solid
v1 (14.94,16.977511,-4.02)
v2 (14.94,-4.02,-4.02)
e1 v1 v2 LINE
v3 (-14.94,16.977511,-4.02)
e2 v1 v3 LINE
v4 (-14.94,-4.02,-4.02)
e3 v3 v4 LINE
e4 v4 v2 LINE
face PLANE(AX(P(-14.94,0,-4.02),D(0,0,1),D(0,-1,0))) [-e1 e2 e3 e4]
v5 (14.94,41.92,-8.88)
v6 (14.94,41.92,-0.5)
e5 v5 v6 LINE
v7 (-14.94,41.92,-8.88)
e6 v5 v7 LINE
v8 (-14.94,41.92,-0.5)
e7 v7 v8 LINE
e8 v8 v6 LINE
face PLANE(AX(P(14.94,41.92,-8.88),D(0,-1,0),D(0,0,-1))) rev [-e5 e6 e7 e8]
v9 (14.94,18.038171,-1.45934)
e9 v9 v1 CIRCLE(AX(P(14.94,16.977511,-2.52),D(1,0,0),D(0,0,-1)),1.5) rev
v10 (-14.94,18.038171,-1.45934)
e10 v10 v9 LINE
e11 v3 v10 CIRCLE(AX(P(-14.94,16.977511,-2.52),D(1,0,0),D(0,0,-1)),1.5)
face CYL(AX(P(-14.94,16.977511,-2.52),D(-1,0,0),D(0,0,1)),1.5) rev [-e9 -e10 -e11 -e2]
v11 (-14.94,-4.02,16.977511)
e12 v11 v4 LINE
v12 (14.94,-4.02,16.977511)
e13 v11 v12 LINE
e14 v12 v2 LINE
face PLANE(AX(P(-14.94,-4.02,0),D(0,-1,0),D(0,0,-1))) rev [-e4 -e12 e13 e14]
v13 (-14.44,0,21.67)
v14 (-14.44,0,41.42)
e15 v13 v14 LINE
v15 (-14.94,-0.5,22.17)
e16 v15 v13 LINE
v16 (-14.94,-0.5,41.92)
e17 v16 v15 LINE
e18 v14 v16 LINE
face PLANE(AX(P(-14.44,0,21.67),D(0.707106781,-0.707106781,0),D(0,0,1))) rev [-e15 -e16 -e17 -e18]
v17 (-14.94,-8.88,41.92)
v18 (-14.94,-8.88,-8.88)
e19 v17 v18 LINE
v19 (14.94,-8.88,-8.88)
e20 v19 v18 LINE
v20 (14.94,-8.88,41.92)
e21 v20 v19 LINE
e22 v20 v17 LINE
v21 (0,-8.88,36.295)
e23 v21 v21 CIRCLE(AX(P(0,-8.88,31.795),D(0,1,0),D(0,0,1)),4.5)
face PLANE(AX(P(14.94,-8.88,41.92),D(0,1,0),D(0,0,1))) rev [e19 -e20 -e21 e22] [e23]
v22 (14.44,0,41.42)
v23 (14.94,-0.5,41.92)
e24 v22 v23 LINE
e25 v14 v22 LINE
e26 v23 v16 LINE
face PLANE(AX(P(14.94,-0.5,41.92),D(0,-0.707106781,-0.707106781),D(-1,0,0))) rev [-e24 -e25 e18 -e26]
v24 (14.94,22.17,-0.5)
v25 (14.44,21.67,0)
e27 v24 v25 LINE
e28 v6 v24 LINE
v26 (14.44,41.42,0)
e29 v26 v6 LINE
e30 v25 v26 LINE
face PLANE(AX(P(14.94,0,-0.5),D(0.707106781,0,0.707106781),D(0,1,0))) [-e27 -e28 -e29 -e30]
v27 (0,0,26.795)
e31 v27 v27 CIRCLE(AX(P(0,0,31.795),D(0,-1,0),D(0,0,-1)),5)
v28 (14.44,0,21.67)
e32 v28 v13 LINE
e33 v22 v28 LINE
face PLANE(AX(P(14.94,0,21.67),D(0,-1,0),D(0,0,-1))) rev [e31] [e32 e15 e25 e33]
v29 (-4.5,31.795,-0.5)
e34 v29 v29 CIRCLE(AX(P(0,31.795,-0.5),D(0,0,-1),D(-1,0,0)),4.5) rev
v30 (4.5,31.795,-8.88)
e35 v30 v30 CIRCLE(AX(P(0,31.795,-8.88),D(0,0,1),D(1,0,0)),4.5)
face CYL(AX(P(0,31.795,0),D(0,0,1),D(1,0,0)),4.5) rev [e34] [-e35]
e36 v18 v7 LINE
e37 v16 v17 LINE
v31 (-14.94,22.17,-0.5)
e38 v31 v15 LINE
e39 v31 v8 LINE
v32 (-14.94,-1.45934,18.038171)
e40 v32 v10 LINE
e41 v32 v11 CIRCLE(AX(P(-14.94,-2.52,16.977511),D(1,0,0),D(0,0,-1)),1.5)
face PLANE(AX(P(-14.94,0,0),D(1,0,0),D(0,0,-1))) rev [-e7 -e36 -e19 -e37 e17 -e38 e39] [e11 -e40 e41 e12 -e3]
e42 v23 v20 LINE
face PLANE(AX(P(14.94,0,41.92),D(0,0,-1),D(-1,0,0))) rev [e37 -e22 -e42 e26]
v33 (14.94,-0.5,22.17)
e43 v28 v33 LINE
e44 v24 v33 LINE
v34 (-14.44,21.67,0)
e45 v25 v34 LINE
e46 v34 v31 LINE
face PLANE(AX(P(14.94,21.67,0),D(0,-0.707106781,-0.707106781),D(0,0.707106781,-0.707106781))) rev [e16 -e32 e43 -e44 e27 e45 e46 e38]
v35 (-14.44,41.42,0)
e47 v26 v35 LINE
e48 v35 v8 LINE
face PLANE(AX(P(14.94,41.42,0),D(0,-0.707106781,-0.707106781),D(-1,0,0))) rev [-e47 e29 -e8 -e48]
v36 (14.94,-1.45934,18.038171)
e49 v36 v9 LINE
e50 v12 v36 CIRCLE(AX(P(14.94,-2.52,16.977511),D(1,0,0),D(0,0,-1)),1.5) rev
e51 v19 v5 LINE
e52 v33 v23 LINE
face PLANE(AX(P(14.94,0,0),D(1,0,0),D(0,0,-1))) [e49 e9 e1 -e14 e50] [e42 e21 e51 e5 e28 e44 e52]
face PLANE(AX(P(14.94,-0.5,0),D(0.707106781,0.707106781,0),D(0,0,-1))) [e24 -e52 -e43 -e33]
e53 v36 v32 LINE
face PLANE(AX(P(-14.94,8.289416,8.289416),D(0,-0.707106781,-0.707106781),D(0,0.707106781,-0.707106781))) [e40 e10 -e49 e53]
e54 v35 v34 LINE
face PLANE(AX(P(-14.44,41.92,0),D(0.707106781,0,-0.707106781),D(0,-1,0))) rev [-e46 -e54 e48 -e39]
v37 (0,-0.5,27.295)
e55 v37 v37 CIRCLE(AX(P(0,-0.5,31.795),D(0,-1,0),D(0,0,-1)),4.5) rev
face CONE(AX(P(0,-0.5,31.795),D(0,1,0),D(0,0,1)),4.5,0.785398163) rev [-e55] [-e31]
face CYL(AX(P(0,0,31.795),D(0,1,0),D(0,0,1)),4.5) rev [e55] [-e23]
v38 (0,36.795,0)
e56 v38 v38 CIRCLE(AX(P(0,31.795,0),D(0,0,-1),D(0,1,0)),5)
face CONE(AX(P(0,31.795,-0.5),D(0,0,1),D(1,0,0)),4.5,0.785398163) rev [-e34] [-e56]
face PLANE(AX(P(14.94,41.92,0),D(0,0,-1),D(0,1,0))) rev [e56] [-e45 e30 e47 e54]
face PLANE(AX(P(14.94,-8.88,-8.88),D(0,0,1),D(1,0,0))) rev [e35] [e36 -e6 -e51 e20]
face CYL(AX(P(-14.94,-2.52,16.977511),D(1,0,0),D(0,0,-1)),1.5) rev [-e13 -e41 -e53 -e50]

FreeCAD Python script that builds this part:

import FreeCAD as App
import Part
import Sketcher
from FreeCAD import Vector


def edges_at(feature, points):
    """Names of the edges that pass closest to the given points."""
    edges = feature.Shape.Edges
    near = lambda p: min(range(len(edges)), key=lambda i: edges[i].distToShape(Part.Vertex(*p))[0])
    return sorted({f"Edge{near(p) + 1}" for p in points})

doc = App.newDocument("Part")
params = doc.addObject("Spreadsheet::Sheet", "Params")
for row, (alias, value) in enumerate([
    ("sketch1_width", "50.8 mm"),
    ("sketch1_width2", "8.88 mm"),
    ("sketch1_width3", "20.25 mm"),
    ("pad1_length", "29.88 mm"),
    ("fillet_radius", "1.5 mm"),
    ("sketch3_diameter", "9 mm"),
    ("hole_diameter", "9 mm"),
    ("sketch4_diameter", "9 mm"),
    ("hole2_diameter", "9 mm"),
    ("chamfer_size", "0.5 mm"),
], start=1):
    params.set(f"A{row}", alias)
    params.set(f"B{row}", "=" + value)
    params.setAlias(f"B{row}", alias)

body = doc.addObject("PartDesign::Body", "Body")

# Sketch on YZ plane
sketch1 = body.newObject("Sketcher::SketchObject", "Sketch")
sketch1.AttachmentSupport = (doc.getObject("YZ_Plane"), [""])
sketch1.MapMode = "FlatFace"
sketch1.addGeometry([
    Part.LineSegment(Vector(0, 22, 0), Vector(0, 42, 0)),  # 0
    Part.LineSegment(Vector(0, 42, 0), Vector(-9, 42, 0)),  # 1
    Part.LineSegment(Vector(-9, 42, 0), Vector(-9, -9, 0)),  # 2
    Part.LineSegment(Vector(-9, -9, 0), Vector(42, -9, 0)),  # 3
    Part.LineSegment(Vector(42, -9, 0), Vector(42, 0, 0)),  # 4
    Part.LineSegment(Vector(42, 0, 0), Vector(22, 0, 0)),  # 5
    Part.LineSegment(Vector(22, 0, 0), Vector(0, 22, 0)),  # 6
], False)
sketch1.addConstraint([
    Sketcher.Constraint("Coincident", 0, 2, 1, 1),
    Sketcher.Constraint("Coincident", 1, 2, 2, 1),
    Sketcher.Constraint("Coincident", 2, 2, 3, 1),
    Sketcher.Constraint("Coincident", 3, 2, 4, 1),
    Sketcher.Constraint("Coincident", 4, 2, 5, 1),
    Sketcher.Constraint("Coincident", 5, 2, 6, 1),
    Sketcher.Constraint("Coincident", 6, 2, 0, 1),
    Sketcher.Constraint("Vertical", 0),
    Sketcher.Constraint("Horizontal", 1),
    Sketcher.Constraint("Vertical", 2),
    Sketcher.Constraint("Horizontal", 3),
    Sketcher.Constraint("Vertical", 4),
    Sketcher.Constraint("Horizontal", 5),
    Sketcher.Constraint("PointOnObject", 0, 2, -2),
    Sketcher.Constraint("PointOnObject", 4, 2, -1),
    Sketcher.Constraint("Equal", 5, 0),
    Sketcher.Constraint("Equal", 3, 2),
    Sketcher.Constraint("Equal", 1, 4),
    Sketcher.Constraint("DistanceX", 3, 1, 3, 2, 50.8),
    Sketcher.Constraint("DistanceX", 1, 2, 1, 1, 8.88),
    Sketcher.Constraint("DistanceX", 5, 2, 5, 1, 20.25),
])
sketch1.setExpression("Constraints[18]", "Params.sketch1_width")
sketch1.setExpression("Constraints[19]", "Params.sketch1_width2")
sketch1.setExpression("Constraints[20]", "Params.sketch1_width3")
pad1 = body.newObject("PartDesign::Pad", "Pad")
pad1.Profile = sketch1
pad1.setExpression("Length", "Params.pad1_length")
pad1.Midplane = True

# Sketch on YZ plane
sketch2 = body.newObject("Sketcher::SketchObject", "Sketch001")
sketch2.AttachmentSupport = (doc.getObject("YZ_Plane"), [""])
sketch2.MapMode = "FlatFace"
sketch2.addGeometry([
    Part.LineSegment(Vector(21, -4, 0), Vector(-4, 21, 0)),
    Part.LineSegment(Vector(-4, 21, 0), Vector(-4, -4, 0)),
    Part.LineSegment(Vector(-4, -4, 0), Vector(21, -4, 0)),
], False)
sketch2.addConstraint([
    Sketcher.Constraint("Coincident", 0, 2, 1, 1),
    Sketcher.Constraint("Coincident", 1, 2, 2, 1),
    Sketcher.Constraint("Coincident", 2, 2, 0, 1),
    Sketcher.Constraint("Vertical", 1),
    Sketcher.Constraint("Horizontal", 2),
    Sketcher.Constraint("Equal", 2, 1),
    Sketcher.Constraint("DistanceX", 0, 2, -1, 1, 4.02),
    Sketcher.Constraint("DistanceY", 1, 2, -1, 1, 4.02),
    Sketcher.Constraint("DistanceX", 2, 1, 2, 2, 24.618831),
])
pocket1 = body.newObject("PartDesign::Pocket", "Pocket")
pocket1.Profile = sketch2
pocket1.Type = "ThroughAll"
pocket1.Midplane = True
doc.recompute()

fillet = body.newObject("PartDesign::Fillet", "Fillet")
fillet.Base = (pocket1, edges_at(pocket1, [(0, -4.02, 20.599), (0, 20.599, -4.02)]))
fillet.setExpression("Radius", "Params.fillet_radius")

# Sketch on XZ plane
sketch3 = body.newObject("Sketcher::SketchObject", "Sketch002")
sketch3.AttachmentSupport = (doc.getObject("XZ_Plane"), [""])
sketch3.MapMode = "FlatFace"
sketch3.addGeometry(Part.Circle(Vector(0, 31.8, 0), Vector(0, 0, 1), 4.5), False)
sketch3.addConstraint([
    Sketcher.Constraint("PointOnObject", 0, 3, -2),
    Sketcher.Constraint("Diameter", 0, 9.0),
    Sketcher.Constraint("DistanceY", -1, 1, 0, 3, 31.795),
])
sketch3.setExpression("Constraints[1]", "Params.sketch3_diameter")
doc.recompute()
hole = body.newObject("PartDesign::Hole", "Hole")
hole.Profile = sketch3
hole.ThreadType = "None"
hole.setExpression("Diameter", "Params.hole_diameter")
hole.DepthType = "ThroughAll"
hole.Reversed = True

# Sketch on XY plane
sketch4 = body.newObject("Sketcher::SketchObject", "Sketch003")
sketch4.AttachmentSupport = (doc.getObject("XY_Plane"), [""])
sketch4.MapMode = "FlatFace"
sketch4.addGeometry(Part.Circle(Vector(0, 31.8, 0), Vector(0, 0, 1), 4.5), False)
sketch4.addConstraint([
    Sketcher.Constraint("PointOnObject", 0, 3, -2),
    Sketcher.Constraint("Diameter", 0, 9.0),
    Sketcher.Constraint("DistanceY", -1, 1, 0, 3, 31.795),
])
sketch4.setExpression("Constraints[1]", "Params.sketch4_diameter")
doc.recompute()
hole2 = body.newObject("PartDesign::Hole", "Hole001")
hole2.Profile = sketch4
hole2.ThreadType = "None"
hole2.setExpression("Diameter", "Params.hole2_diameter")
hole2.DepthType = "ThroughAll"
doc.recompute()

chamfer = body.newObject("PartDesign::Chamfer", "Chamfer")
chamfer.Base = (hole2, edges_at(hole2, [
    (0, 0, 41.92),
    (0, 41.92, 0),
    (14.94, 31.795, 0),
    (14.94, 0, 31.795),
    (4.5, 0, 31.795),
    (4.5, 31.795, 0),
    (-14.94, 0, 31.795),
    (-14.94, 31.795, 0),
]))
chamfer.setExpression("Size", "Params.chamfer_size")

doc.recompute()
